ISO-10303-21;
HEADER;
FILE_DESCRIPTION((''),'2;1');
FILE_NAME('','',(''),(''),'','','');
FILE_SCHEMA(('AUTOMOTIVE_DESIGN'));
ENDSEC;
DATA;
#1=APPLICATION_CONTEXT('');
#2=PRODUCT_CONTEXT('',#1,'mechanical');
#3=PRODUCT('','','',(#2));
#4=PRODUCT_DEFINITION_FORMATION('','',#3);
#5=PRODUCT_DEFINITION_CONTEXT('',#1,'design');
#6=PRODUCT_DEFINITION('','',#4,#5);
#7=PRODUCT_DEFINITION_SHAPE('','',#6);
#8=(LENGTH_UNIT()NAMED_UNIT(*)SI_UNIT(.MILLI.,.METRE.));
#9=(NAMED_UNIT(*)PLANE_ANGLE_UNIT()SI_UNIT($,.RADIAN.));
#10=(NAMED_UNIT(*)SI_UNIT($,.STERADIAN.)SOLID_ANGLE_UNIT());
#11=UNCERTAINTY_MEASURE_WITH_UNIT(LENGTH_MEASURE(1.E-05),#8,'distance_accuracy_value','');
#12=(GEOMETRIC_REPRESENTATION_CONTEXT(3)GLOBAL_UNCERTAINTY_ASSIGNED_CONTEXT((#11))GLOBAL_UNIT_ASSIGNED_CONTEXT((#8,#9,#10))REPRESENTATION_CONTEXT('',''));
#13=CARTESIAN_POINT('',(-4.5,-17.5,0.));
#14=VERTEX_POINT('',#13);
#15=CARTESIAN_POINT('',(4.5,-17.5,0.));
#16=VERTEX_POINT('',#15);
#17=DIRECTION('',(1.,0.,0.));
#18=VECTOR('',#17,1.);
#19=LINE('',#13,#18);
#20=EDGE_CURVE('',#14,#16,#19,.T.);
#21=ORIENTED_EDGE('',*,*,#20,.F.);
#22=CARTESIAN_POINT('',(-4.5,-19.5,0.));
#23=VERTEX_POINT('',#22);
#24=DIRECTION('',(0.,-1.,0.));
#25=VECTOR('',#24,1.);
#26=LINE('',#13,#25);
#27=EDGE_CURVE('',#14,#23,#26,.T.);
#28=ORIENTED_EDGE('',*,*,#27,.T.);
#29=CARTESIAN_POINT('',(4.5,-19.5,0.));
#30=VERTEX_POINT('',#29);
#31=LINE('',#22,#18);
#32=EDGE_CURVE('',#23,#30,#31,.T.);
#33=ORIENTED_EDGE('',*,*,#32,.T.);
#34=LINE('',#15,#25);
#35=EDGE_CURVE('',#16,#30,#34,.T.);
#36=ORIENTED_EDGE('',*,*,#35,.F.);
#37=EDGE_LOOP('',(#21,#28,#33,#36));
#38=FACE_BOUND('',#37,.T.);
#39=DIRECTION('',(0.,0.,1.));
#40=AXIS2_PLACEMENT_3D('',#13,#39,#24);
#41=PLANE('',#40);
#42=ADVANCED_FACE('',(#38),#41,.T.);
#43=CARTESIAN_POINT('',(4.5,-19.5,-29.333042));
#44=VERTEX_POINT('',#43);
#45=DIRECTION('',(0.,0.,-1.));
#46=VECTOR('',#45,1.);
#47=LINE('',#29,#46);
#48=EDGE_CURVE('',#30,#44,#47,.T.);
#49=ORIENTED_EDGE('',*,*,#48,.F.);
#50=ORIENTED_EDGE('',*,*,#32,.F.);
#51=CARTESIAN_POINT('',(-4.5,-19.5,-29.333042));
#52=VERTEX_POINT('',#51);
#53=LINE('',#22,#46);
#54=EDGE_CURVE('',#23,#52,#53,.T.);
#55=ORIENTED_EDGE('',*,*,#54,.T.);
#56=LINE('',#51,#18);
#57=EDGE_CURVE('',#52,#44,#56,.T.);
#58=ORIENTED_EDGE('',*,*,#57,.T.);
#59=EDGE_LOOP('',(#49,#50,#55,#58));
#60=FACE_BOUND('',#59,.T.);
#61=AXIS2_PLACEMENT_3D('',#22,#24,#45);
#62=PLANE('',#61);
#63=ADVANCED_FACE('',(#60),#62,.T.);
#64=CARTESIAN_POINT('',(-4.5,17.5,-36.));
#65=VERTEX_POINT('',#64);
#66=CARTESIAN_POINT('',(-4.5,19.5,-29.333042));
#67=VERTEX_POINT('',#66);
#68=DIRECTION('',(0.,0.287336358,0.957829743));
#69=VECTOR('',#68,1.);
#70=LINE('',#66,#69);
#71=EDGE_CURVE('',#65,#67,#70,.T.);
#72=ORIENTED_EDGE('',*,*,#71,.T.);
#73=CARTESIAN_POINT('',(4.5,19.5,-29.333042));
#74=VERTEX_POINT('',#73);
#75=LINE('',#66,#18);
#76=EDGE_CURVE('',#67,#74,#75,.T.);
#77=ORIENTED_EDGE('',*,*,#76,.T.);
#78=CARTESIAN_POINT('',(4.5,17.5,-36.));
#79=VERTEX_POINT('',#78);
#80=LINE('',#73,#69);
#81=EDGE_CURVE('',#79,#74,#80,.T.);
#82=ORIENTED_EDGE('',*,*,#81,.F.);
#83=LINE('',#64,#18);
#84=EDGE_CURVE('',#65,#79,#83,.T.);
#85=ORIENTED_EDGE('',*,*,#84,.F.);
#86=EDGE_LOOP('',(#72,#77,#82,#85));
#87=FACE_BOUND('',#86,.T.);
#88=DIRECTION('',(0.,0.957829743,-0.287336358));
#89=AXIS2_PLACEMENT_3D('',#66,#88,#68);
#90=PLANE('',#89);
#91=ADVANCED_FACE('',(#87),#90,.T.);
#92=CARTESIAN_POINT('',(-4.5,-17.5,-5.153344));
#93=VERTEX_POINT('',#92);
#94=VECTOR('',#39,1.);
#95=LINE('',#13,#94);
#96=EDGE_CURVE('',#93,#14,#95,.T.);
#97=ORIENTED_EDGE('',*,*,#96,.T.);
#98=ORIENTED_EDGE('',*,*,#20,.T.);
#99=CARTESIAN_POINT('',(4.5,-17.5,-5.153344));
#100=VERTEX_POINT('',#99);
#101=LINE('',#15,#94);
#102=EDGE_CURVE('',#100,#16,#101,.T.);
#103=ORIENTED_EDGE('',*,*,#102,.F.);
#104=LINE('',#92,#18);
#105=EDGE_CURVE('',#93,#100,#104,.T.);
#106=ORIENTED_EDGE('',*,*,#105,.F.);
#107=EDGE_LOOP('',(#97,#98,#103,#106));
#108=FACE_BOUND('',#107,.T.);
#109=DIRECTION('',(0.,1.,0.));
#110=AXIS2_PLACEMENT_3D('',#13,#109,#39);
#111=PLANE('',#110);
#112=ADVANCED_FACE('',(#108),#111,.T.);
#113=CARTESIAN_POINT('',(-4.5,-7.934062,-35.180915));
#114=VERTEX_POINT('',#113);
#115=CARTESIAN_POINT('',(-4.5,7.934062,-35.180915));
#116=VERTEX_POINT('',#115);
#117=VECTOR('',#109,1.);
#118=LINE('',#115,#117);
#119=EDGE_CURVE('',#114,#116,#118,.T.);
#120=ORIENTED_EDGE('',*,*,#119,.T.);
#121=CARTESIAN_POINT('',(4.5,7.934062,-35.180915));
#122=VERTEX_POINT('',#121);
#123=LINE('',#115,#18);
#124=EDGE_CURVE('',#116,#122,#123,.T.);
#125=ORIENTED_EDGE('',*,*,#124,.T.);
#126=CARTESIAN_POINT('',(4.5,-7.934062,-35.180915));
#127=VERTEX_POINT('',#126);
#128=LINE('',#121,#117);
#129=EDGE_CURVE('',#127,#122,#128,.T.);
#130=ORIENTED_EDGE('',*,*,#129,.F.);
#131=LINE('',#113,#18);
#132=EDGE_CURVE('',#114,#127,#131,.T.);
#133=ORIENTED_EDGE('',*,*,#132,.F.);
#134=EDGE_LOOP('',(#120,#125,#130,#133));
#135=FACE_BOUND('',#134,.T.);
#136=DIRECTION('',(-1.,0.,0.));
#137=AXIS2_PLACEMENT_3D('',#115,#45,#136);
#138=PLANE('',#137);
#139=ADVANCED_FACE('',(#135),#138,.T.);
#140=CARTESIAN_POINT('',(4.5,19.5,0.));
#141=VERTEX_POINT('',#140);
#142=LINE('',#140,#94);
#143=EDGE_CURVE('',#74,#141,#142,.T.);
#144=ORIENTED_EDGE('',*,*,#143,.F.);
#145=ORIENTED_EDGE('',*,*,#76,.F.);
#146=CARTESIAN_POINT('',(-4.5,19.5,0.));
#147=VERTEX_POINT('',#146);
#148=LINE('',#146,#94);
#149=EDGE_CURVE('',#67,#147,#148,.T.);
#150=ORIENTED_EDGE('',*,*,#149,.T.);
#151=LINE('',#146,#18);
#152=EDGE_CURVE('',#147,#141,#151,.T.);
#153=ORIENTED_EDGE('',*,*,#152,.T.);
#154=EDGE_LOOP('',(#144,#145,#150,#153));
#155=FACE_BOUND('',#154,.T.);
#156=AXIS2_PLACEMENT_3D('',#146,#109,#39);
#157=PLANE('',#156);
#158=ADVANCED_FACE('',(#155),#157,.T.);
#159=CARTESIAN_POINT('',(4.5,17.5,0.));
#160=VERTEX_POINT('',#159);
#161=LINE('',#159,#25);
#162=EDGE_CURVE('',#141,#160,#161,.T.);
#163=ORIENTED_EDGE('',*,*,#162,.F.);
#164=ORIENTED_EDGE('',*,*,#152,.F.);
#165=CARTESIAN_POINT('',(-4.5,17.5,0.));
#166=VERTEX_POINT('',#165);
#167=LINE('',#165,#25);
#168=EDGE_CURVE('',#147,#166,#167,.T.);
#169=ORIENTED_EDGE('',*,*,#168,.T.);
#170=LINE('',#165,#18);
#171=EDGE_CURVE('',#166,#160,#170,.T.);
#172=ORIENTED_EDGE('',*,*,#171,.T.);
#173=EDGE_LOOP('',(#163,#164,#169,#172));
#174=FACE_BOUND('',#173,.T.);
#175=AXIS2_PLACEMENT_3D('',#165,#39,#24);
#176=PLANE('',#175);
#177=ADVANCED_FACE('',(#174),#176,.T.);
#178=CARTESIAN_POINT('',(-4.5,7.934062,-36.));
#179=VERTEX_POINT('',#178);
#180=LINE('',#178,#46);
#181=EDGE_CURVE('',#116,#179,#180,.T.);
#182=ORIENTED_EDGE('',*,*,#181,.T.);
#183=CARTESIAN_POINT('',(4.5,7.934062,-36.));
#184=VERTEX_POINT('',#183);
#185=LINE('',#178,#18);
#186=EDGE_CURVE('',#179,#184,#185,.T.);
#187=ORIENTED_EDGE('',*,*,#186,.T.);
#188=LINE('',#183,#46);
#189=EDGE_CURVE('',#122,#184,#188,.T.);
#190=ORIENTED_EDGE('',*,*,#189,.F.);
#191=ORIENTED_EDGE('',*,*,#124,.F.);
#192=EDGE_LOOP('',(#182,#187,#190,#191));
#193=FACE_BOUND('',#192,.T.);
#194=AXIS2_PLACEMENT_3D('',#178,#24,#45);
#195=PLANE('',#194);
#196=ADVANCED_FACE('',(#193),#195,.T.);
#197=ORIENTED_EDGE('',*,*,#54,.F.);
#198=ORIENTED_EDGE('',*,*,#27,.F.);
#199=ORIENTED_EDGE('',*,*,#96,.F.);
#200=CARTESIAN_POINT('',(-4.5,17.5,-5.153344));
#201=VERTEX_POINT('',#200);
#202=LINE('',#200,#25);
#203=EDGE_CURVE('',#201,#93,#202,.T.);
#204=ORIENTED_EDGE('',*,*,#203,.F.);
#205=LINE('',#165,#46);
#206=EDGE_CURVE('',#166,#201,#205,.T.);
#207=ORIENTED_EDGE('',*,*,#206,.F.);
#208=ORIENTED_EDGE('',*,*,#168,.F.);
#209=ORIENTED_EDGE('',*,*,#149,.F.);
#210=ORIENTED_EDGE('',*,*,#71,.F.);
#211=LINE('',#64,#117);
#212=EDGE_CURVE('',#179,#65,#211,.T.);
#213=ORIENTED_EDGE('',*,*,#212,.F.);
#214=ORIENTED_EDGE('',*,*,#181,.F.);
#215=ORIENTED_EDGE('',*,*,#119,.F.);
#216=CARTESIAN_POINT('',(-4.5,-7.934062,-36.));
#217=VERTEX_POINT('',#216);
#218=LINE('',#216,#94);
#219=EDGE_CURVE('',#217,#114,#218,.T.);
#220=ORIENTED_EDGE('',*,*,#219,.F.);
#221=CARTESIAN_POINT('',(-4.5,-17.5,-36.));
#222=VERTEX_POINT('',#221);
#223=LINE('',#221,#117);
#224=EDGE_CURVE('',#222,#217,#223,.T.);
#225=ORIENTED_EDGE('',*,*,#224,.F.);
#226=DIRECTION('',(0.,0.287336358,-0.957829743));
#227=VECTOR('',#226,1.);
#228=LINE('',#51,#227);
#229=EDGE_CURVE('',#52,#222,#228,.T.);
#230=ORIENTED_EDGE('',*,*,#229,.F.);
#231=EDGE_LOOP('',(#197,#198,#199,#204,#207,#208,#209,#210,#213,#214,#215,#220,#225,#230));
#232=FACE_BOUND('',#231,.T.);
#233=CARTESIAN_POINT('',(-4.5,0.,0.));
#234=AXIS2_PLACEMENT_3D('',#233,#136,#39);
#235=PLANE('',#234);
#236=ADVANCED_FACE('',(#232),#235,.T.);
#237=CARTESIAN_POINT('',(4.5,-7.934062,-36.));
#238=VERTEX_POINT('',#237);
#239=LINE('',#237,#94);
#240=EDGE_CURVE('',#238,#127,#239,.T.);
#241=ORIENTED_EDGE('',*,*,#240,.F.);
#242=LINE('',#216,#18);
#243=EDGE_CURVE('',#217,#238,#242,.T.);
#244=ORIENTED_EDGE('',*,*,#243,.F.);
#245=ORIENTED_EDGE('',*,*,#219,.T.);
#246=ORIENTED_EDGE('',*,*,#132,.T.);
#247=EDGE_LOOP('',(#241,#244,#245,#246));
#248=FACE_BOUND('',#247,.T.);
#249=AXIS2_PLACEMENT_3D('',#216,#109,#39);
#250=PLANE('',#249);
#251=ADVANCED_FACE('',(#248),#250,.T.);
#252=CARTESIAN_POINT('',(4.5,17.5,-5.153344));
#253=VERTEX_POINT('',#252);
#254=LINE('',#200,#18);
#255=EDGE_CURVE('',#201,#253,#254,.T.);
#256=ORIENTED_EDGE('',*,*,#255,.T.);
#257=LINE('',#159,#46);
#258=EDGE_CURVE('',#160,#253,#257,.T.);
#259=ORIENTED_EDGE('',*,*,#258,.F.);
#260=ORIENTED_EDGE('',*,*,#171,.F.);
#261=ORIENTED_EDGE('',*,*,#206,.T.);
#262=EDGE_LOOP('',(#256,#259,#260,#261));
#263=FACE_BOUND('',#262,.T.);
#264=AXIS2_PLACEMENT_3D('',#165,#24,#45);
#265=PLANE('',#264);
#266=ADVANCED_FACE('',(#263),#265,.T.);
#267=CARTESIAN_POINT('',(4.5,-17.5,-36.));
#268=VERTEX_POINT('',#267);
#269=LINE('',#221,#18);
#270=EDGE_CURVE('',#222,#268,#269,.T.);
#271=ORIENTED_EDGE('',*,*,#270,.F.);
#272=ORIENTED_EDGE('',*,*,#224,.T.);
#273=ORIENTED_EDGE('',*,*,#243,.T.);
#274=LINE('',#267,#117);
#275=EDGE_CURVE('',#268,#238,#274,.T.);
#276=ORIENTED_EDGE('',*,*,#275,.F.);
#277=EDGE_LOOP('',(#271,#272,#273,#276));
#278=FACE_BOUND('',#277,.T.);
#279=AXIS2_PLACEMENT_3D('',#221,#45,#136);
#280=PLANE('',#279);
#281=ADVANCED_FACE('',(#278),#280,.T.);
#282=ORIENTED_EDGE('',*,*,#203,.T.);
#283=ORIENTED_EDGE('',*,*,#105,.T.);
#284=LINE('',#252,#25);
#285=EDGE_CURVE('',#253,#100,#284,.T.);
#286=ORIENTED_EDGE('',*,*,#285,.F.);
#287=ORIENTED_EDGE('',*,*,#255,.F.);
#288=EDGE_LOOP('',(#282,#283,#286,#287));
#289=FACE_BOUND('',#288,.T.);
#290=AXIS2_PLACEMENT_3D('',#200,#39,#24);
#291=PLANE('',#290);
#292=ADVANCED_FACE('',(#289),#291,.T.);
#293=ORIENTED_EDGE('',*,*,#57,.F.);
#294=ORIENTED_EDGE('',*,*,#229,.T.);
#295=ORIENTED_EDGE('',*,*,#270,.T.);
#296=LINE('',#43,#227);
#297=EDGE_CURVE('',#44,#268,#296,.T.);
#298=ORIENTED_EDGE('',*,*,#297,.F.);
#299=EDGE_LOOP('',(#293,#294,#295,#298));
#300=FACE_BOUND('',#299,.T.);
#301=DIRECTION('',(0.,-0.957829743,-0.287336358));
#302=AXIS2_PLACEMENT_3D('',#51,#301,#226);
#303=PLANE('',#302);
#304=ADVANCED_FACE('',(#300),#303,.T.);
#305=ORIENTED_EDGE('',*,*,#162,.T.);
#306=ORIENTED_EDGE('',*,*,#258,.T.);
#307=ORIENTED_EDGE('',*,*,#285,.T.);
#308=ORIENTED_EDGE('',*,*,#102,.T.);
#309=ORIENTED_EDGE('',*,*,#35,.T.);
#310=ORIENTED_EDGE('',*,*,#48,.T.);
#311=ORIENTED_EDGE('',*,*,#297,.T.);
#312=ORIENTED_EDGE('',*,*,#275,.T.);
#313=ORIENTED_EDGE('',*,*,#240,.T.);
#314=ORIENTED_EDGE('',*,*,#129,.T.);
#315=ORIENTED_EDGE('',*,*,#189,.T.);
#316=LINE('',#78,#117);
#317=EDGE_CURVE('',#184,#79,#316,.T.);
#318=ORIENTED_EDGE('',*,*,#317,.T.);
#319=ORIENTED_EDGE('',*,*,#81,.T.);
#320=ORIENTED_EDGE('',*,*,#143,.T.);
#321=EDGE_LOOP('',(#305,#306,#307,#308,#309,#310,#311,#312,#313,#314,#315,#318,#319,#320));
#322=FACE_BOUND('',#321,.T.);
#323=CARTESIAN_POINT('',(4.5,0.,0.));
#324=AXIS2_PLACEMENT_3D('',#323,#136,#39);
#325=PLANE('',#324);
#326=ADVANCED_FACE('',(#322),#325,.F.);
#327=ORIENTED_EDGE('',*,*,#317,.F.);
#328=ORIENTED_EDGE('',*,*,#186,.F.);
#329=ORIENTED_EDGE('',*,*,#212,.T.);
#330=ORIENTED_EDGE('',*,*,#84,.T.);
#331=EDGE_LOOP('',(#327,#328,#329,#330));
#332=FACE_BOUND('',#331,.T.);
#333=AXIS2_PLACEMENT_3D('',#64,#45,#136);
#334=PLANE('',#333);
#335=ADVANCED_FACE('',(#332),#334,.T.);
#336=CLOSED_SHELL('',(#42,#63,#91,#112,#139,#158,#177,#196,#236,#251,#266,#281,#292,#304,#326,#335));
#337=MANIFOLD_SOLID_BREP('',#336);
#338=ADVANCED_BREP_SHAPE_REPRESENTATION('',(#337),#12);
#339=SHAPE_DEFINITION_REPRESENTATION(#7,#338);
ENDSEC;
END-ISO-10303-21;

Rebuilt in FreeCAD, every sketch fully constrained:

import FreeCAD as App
import Part
import Sketcher

V = App.Vector
Q = App.Units.Quantity

doc = App.newDocument("Part")
body = doc.addObject("PartDesign::Body", "Body")

# Sketch on YZ plane
sketch1 = body.newObject("Sketcher::SketchObject", "Sketch")
sketch1.AttachmentSupport = (doc.getObject("YZ_Plane"), [""])
sketch1.MapMode = "FlatFace"
sketch1.addGeometry([
    Part.LineSegment(V(19.5, 0, 0), V(17.5, 0, 0)),  # 0
    Part.LineSegment(V(17.5, 0, 0), V(17.5, -5.2, 0)),  # 1
    Part.LineSegment(V(17.5, -5.2, 0), V(-17.5, -5.2, 0)),  # 2
    Part.LineSegment(V(-17.5, -5.2, 0), V(-17.5, 0, 0)),  # 3
    Part.LineSegment(V(-17.5, 0, 0), V(-19.5, 0, 0)),  # 4
    Part.LineSegment(V(-19.5, 0, 0), V(-19.5, -29.3, 0)),  # 5
    Part.LineSegment(V(-19.5, -29.3, 0), V(-17.5, -36, 0)),  # 6
    Part.LineSegment(V(-17.5, -36, 0), V(-7.9, -36, 0)),  # 7
    Part.LineSegment(V(-7.9, -36, 0), V(-7.9, -35.2, 0)),  # 8
    Part.LineSegment(V(-7.9, -35.2, 0), V(7.9, -35.2, 0)),  # 9
    Part.LineSegment(V(7.9, -35.2, 0), V(7.9, -36, 0)),  # 10
    Part.LineSegment(V(7.9, -36, 0), V(17.5, -36, 0)),  # 11
    Part.LineSegment(V(17.5, -36, 0), V(19.5, -29.3, 0)),  # 12
    Part.LineSegment(V(19.5, -29.3, 0), V(19.5, 0, 0)),  # 13
], False)
sketch1.addConstraint([
    Sketcher.Constraint("Coincident", 0, 2, 1, 1),
    Sketcher.Constraint("Coincident", 1, 2, 2, 1),
    Sketcher.Constraint("Coincident", 2, 2, 3, 1),
    Sketcher.Constraint("Coincident", 3, 2, 4, 1),
    Sketcher.Constraint("Coincident", 4, 2, 5, 1),
    Sketcher.Constraint("Coincident", 5, 2, 6, 1),
    Sketcher.Constraint("Coincident", 6, 2, 7, 1),
    Sketcher.Constraint("Coincident", 7, 2, 8, 1),
    Sketcher.Constraint("Coincident", 8, 2, 9, 1),
    Sketcher.Constraint("Coincident", 9, 2, 10, 1),
    Sketcher.Constraint("Coincident", 10, 2, 11, 1),
    Sketcher.Constraint("Coincident", 11, 2, 12, 1),
    Sketcher.Constraint("Coincident", 12, 2, 13, 1),
    Sketcher.Constraint("Coincident", 13, 2, 0, 1),
    Sketcher.Constraint("Horizontal", 0),
    Sketcher.Constraint("Vertical", 1),
    Sketcher.Constraint("Horizontal", 2),
    Sketcher.Constraint("Vertical", 3),
    Sketcher.Constraint("Horizontal", 4),
    Sketcher.Constraint("Vertical", 5),
    Sketcher.Constraint("Horizontal", 7),
    Sketcher.Constraint("Vertical", 8),
    Sketcher.Constraint("Horizontal", 9),
    Sketcher.Constraint("Vertical", 10),
    Sketcher.Constraint("Horizontal", 11),
    Sketcher.Constraint("Vertical", 13),
    Sketcher.Constraint("Symmetric", 0, 2, 3, 2, -1, 1),
    Sketcher.Constraint("Symmetric", 7, 2, 10, 2, -2),
    Sketcher.Constraint("Symmetric", 5, 2, 12, 2, -2),
    Sketcher.Constraint("PointOnObject", 0, 2, -1),
    Sketcher.Constraint("Vertical", 3, 2, 6, 2),
    Sketcher.Constraint("Vertical", 1, 2, 11, 2),
    Sketcher.Constraint("DistanceX", 0, 2, 0, 1, Q("2 mm")),
    Sketcher.Constraint("DistanceX", 2, 2, 2, 1, Q("35 mm")),
    Sketcher.Constraint("DistanceY", 6, 2, -1, 1, Q("36 mm")),
    Sketcher.Constraint("DistanceX", 7, 1, 7, 2, Q("9.565938 mm")),
    Sketcher.Constraint("DistanceY", 5, 2, 5, 1, Q("29.333042 mm")),
    Sketcher.Constraint("DistanceY", 5, 2, 2, 2, Q("24.179698 mm")),
    Sketcher.Constraint("DistanceY", 8, 1, 8, 2, Q("0.819085 mm")),
])
pad1 = body.newObject("PartDesign::Pad", "Pad")
pad1.Profile = sketch1
pad1.Type = "TwoLengths"
pad1.Length = 4.5
pad1.Length2 = 4.5

doc.recompute()
